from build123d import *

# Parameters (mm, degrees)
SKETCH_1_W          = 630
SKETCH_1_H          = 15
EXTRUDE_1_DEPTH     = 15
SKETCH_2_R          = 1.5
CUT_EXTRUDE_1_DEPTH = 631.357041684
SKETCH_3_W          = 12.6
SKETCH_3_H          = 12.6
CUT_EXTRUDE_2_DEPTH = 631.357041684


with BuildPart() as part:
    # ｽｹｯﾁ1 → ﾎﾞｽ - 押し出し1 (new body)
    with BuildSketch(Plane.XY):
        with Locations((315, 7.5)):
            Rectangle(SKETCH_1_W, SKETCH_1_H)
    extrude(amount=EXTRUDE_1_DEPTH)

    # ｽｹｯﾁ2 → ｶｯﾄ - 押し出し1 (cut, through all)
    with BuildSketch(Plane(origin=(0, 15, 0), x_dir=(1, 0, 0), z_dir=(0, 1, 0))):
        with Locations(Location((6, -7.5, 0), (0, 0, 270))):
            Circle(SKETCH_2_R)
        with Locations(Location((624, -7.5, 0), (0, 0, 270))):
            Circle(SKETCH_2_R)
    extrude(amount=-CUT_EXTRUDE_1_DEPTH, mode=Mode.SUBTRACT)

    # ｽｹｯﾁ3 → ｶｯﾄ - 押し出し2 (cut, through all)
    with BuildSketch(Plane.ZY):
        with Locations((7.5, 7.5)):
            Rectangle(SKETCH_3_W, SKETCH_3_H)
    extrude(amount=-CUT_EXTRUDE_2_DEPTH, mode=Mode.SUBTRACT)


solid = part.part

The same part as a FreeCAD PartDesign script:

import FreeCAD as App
import Part
import Sketcher
Q = App.Units.Quantity

doc = App.newDocument("Part")
body = doc.addObject("PartDesign::Body", "Body")

# Sketch on XY plane
sketch1 = body.newObject("Sketcher::SketchObject", "Sketch")
sketch1.AttachmentSupport = (doc.getObject("XY_Plane"), [""])
sketch1.MapMode = "FlatFace"
sketch1.addGeometry([
    Part.LineSegment(App.Vector(0, 15, 0), App.Vector(0, 0, 0)),
    Part.LineSegment(App.Vector(0, 0, 0), App.Vector(630, 0, 0)),
    Part.LineSegment(App.Vector(630, 0, 0), App.Vector(630, 15, 0)),
    Part.LineSegment(App.Vector(630, 15, 0), App.Vector(0, 15, 0)),
], False)
sketch1.addConstraint([
    Sketcher.Constraint("Coincident", 0, 2, 1, 1),
    Sketcher.Constraint("Coincident", 1, 2, 2, 1),
    Sketcher.Constraint("Coincident", 2, 2, 3, 1),
    Sketcher.Constraint("Coincident", 3, 2, 0, 1),
    Sketcher.Constraint("Vertical", 0),
    Sketcher.Constraint("Horizontal", 1),
    Sketcher.Constraint("Vertical", 2),
    Sketcher.Constraint("Horizontal", 3),
    Sketcher.Constraint("Coincident", 0, 2, -1, 1),
    Sketcher.Constraint("DistanceX", 1, 1, 1, 2, Q("630 mm")),
    Sketcher.Constraint("DistanceY", 0, 2, 0, 1, Q("15 mm")),
])
pad1 = body.newObject("PartDesign::Pad", "Pad")
pad1.Profile = sketch1
pad1.Length = 15

# Sketch on XZ plane
sketch2 = body.newObject("Sketcher::SketchObject", "Sketch001")
sketch2.AttachmentSupport = (doc.getObject("XZ_Plane"), [""])
sketch2.MapMode = "FlatFace"
sketch2.AttachmentOffset = App.Placement(App.Vector(0, 0, -15), App.Rotation())
sketch2.addGeometry([
    Part.Circle(App.Vector(6, 7.5, 0), App.Vector(0, 0, 1), 1.5),
    Part.Circle(App.Vector(624, 7.5, 0), App.Vector(0, 0, 1), 1.5),
], False)
sketch2.addConstraint([
    Sketcher.Constraint("Equal", 0, 1),
    Sketcher.Constraint("Horizontal", 0, 3, 1, 3),
    Sketcher.Constraint("Diameter", 0, Q("3 mm")),
    Sketcher.Constraint("DistanceX", -1, 1, 0, 3, Q("6 mm")),
    Sketcher.Constraint("DistanceX", -1, 1, 1, 3, Q("624 mm")),
    Sketcher.Constraint("DistanceY", -1, 1, 0, 3, Q("7.5 mm")),
])
pocket1 = body.newObject("PartDesign::Pocket", "Pocket")
pocket1.Profile = sketch2
pocket1.Type = "ThroughAll"
pocket1.Reversed = True

# Sketch on YZ plane
sketch3 = body.newObject("Sketcher::SketchObject", "Sketch002")
sketch3.AttachmentSupport = (doc.getObject("YZ_Plane"), [""])
sketch3.MapMode = "FlatFace"
sketch3.addGeometry([
    Part.LineSegment(App.Vector(14, 1, 0), App.Vector(1, 1, 0)),
    Part.LineSegment(App.Vector(1, 1, 0), App.Vector(1, 14, 0)),
    Part.LineSegment(App.Vector(1, 14, 0), App.Vector(14, 14, 0)),
    Part.LineSegment(App.Vector(14, 14, 0), App.Vector(14, 1, 0)),
], False)
sketch3.addConstraint([
    Sketcher.Constraint("Coincident", 0, 2, 1, 1),
    Sketcher.Constraint("Coincident", 1, 2, 2, 1),
    Sketcher.Constraint("Coincident", 2, 2, 3, 1),
    Sketcher.Constraint("Coincident", 3, 2, 0, 1),
    Sketcher.Constraint("Horizontal", 0),
    Sketcher.Constraint("Vertical", 1),
    Sketcher.Constraint("Horizontal", 2),
    Sketcher.Constraint("Vertical", 3),
    Sketcher.Constraint("Equal", 2, 1),
    Sketcher.Constraint("DistanceX", 0, 2, 0, 1, Q("12.6 mm")),
    Sketcher.Constraint("DistanceX", -1, 1, 0, 2, Q("1.2 mm")),
    Sketcher.Constraint("DistanceY", -1, 1, 0, 2, Q("1.2 mm")),
])
pocket2 = body.newObject("PartDesign::Pocket", "Pocket001")
pocket2.Profile = sketch3
pocket2.Type = "ThroughAll"
pocket2.Reversed = True

doc.recompute()
